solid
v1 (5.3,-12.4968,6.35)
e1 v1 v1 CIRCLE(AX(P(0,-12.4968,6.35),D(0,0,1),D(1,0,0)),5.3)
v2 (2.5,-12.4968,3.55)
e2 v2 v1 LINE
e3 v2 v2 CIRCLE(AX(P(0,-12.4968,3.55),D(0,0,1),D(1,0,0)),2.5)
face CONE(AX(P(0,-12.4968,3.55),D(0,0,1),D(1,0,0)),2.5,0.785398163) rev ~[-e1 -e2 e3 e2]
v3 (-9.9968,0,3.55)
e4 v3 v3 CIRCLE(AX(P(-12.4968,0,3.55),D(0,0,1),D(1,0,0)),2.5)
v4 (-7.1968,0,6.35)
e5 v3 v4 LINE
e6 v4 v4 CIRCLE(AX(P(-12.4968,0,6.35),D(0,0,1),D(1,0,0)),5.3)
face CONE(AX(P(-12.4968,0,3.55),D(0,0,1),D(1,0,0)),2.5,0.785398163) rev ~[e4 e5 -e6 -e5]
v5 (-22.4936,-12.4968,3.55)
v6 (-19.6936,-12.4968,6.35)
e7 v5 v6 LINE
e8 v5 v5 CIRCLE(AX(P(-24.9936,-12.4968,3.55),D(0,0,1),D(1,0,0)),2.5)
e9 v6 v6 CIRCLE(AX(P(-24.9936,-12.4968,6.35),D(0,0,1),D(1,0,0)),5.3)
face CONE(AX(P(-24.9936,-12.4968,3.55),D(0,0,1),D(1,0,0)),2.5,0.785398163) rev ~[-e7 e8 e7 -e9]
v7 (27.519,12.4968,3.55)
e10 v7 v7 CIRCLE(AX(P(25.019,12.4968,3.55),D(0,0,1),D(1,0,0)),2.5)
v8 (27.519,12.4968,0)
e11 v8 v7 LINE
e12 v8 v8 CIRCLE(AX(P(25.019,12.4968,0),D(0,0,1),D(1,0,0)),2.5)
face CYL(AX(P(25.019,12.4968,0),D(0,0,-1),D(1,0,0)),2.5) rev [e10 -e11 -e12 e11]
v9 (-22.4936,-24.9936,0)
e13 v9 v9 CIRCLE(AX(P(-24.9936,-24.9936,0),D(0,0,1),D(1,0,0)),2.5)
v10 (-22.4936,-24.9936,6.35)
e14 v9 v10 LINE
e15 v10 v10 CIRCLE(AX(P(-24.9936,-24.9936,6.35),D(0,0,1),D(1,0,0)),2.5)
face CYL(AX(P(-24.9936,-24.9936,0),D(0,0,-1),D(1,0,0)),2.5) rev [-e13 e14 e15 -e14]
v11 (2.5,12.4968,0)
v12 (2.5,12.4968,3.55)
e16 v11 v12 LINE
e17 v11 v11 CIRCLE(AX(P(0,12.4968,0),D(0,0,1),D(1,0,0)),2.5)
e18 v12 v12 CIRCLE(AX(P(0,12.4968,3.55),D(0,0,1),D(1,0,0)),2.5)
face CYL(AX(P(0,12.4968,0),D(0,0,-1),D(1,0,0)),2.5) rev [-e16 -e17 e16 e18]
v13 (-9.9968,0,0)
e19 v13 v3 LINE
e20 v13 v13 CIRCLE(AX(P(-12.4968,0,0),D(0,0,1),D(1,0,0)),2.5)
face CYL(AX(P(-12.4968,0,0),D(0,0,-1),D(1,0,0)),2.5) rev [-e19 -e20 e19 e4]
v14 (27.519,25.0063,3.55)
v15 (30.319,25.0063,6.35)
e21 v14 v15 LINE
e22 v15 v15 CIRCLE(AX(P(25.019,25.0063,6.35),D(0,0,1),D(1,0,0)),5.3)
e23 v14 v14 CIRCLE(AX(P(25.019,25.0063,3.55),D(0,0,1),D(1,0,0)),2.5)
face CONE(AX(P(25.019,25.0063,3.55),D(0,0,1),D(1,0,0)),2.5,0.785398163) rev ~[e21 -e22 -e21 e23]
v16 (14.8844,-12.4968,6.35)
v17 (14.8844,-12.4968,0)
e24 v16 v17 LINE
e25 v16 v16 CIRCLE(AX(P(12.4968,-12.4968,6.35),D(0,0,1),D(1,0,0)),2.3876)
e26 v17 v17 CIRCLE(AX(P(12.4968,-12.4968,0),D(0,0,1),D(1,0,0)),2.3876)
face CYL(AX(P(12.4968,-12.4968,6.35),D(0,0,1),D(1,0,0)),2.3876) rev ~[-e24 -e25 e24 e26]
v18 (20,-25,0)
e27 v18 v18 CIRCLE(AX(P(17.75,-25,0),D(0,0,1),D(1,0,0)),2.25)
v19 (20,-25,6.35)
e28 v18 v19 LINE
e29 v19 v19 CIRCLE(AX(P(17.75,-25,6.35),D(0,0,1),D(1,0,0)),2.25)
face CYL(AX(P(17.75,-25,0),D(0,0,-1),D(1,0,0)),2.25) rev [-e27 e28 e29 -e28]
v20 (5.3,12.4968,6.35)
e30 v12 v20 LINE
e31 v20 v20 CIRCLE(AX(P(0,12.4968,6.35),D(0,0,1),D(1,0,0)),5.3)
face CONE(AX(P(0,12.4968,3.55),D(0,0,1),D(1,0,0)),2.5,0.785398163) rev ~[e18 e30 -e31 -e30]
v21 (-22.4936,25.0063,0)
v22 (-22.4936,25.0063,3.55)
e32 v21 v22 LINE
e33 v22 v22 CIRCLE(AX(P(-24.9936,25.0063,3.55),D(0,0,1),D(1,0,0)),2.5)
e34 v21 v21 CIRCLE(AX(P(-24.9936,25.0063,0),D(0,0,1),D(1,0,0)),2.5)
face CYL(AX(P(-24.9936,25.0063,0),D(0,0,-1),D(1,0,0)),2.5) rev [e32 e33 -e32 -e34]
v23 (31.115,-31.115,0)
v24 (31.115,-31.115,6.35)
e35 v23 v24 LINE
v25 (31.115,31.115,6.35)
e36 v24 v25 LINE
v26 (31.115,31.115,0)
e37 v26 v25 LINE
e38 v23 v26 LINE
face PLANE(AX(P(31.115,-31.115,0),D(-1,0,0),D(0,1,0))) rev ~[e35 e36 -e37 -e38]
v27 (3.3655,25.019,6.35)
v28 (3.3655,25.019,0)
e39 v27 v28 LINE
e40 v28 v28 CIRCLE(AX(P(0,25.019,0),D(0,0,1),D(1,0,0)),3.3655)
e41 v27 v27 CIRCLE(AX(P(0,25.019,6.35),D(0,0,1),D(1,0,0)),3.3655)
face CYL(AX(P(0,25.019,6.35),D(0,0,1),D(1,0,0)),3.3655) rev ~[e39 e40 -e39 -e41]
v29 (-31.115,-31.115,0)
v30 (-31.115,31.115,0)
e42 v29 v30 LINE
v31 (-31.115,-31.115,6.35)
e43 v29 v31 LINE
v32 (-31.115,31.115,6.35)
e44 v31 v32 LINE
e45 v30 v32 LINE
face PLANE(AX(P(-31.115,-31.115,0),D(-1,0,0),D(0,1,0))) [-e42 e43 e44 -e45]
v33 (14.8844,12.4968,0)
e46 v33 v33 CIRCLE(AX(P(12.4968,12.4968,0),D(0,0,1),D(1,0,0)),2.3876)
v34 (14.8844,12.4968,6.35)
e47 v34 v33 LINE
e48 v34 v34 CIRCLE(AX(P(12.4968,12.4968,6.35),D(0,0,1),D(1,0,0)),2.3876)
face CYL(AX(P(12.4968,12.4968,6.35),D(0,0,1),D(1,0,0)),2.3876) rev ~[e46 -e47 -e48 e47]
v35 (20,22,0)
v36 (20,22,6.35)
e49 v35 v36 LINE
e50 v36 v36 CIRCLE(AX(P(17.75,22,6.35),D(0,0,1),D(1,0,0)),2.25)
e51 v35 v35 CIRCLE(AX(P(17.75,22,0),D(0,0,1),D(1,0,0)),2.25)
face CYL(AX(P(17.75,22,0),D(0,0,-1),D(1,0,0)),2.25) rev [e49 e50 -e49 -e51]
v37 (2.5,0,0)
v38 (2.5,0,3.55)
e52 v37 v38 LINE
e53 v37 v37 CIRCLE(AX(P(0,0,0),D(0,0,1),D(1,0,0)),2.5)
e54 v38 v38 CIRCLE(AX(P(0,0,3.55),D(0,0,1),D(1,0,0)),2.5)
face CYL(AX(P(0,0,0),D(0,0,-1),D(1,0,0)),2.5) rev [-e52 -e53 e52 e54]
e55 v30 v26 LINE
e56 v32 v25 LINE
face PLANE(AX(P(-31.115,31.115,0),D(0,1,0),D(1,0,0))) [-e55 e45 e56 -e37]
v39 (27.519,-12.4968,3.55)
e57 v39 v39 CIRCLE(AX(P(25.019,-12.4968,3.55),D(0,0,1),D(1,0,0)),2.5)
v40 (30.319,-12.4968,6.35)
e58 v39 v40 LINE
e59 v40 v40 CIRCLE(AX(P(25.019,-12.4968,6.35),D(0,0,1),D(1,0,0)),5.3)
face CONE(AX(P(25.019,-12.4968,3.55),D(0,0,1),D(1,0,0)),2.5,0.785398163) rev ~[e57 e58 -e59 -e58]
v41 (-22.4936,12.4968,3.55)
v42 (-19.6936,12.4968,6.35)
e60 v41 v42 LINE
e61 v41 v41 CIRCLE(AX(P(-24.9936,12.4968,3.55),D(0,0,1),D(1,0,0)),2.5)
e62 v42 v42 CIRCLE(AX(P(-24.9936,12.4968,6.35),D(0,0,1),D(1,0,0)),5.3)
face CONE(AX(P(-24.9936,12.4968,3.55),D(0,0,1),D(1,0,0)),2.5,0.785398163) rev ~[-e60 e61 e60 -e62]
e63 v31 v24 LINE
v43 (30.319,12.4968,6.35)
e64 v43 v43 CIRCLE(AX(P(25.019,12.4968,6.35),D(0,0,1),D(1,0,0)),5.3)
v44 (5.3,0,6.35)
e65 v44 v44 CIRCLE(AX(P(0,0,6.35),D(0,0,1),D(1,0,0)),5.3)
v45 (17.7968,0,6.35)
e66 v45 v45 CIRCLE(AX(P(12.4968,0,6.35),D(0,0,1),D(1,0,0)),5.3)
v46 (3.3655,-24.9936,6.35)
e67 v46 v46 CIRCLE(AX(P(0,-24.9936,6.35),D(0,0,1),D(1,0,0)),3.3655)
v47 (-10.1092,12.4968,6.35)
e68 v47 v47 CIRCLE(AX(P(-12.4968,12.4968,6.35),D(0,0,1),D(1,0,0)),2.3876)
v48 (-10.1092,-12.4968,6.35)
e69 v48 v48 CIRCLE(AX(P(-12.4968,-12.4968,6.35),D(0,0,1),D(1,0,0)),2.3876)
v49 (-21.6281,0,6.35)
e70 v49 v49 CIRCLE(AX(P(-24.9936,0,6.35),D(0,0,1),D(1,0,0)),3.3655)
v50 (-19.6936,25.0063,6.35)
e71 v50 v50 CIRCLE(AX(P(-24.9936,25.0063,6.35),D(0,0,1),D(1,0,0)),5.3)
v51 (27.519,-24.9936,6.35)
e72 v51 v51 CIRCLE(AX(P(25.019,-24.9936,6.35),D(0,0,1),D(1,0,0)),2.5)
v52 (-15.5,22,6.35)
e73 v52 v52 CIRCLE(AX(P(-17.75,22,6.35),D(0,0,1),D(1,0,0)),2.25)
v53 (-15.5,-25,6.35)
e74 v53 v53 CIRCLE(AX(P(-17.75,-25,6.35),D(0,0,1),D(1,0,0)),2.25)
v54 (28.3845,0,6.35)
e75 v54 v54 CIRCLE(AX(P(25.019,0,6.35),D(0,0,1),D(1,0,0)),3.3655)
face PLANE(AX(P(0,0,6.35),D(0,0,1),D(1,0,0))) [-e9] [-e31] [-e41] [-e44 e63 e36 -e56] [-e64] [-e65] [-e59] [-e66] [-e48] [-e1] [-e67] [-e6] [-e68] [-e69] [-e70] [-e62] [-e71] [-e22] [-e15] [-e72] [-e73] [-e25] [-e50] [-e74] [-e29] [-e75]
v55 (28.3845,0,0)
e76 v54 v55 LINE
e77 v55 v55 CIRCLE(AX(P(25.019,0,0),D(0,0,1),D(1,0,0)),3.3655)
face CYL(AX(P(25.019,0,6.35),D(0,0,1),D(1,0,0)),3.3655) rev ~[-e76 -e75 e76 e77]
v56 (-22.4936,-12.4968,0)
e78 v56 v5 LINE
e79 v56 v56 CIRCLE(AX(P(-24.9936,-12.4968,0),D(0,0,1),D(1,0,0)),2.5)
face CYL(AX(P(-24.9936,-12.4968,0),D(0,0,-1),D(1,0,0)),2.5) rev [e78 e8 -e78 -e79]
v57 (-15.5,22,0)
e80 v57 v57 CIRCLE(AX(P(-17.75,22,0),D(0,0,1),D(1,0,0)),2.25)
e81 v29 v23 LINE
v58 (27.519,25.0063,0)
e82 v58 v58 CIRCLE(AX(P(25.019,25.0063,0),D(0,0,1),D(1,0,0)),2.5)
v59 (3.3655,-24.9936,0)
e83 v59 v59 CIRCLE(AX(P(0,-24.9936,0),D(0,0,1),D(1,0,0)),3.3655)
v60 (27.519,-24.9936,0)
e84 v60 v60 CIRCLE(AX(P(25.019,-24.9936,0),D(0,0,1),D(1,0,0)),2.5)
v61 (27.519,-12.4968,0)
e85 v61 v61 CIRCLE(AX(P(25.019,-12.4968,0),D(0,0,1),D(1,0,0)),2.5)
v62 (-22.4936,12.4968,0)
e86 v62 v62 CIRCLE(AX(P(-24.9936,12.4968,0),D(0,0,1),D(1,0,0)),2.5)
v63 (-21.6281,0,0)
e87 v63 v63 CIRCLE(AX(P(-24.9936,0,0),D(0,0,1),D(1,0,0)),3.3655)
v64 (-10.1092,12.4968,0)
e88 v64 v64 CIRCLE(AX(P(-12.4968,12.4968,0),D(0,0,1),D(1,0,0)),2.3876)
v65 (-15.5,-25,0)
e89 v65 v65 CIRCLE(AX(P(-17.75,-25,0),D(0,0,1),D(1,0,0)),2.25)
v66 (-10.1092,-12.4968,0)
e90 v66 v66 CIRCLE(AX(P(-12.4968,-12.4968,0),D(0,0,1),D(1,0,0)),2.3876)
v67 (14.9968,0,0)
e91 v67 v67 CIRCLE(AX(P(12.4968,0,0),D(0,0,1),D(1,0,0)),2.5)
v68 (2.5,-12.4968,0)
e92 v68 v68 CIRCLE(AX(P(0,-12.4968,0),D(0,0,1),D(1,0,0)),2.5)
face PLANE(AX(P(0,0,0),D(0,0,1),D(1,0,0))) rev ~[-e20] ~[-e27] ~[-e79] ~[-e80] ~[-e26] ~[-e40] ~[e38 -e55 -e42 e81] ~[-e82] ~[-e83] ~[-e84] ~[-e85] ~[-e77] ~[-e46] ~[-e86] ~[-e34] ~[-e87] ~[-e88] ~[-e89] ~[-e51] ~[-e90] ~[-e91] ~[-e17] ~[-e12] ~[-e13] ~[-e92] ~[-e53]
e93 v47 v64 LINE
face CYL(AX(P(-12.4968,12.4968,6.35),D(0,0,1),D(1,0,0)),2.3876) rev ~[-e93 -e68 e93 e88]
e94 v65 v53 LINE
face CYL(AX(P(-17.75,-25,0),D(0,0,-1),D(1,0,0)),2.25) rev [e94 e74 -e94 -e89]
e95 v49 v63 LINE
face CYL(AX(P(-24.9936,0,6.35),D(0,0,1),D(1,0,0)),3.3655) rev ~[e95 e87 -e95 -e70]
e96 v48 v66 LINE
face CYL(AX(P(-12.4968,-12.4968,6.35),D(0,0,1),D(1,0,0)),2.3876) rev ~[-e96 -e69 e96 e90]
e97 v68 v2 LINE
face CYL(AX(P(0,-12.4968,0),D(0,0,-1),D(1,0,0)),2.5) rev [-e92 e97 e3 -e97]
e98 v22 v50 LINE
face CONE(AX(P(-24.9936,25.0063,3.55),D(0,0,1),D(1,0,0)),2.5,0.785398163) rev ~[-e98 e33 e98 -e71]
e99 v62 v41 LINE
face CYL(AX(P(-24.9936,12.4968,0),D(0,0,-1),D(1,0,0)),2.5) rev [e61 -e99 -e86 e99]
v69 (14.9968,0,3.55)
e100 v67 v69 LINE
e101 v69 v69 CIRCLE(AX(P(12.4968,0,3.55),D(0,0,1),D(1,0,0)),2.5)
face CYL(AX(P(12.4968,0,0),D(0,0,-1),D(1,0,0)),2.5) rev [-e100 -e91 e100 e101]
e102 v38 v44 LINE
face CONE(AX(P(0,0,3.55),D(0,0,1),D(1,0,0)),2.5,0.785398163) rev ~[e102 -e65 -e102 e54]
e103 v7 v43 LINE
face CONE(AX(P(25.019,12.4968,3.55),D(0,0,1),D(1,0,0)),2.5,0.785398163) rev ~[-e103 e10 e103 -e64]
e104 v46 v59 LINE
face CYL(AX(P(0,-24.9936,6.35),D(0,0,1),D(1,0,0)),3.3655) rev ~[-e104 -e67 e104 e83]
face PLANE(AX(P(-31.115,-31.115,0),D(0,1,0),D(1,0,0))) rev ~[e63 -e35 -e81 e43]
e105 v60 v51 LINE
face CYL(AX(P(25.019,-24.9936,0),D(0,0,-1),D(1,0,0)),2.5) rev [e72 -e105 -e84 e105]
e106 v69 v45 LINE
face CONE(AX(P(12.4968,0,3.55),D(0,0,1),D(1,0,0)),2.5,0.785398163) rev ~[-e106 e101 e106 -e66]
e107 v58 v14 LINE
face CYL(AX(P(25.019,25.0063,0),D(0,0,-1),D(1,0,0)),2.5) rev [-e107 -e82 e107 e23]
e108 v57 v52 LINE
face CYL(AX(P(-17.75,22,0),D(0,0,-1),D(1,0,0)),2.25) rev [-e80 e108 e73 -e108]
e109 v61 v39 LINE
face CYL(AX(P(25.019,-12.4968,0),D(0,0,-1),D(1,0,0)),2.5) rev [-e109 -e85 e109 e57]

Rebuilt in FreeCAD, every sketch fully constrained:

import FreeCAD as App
import Part
import Sketcher
Q = App.Units.Quantity


def edges_at(feature, points):
    """Names of the edges that pass closest to the given points."""
    edges = feature.Shape.Edges
    near = lambda p: min(range(len(edges)), key=lambda i: edges[i].distToShape(Part.Vertex(*p))[0])
    return sorted({f"Edge{near(p) + 1}" for p in points})

doc = App.newDocument("Part")
body = doc.addObject("PartDesign::Body", "Body")

sketch1 = body.newObject("Sketcher::SketchObject", "Sketch")
sketch1.AttachmentSupport = (doc.getObject("XY_Plane"), [""])
sketch1.MapMode = "FlatFace"
sketch1.addGeometry([
    Part.LineSegment(App.Vector(-31.1, 31.1, 0), App.Vector(-31.1, -31.1, 0)),
    Part.LineSegment(App.Vector(-31.1, -31.1, 0), App.Vector(31.1, -31.1, 0)),
    Part.LineSegment(App.Vector(31.1, -31.1, 0), App.Vector(31.1, 31.1, 0)),
    Part.LineSegment(App.Vector(31.1, 31.1, 0), App.Vector(-31.1, 31.1, 0)),
    Part.Circle(App.Vector(-25, -25, 0), App.Vector(0, 0, 1), 2.5),
    Part.Circle(App.Vector(-17.8, -25, 0), App.Vector(0, 0, 1), 2.2),
    Part.Circle(App.Vector(-25, -12.5, 0), App.Vector(0, 0, 1), 2.5),
    Part.Circle(App.Vector(0, -12.5, 0), App.Vector(0, 0, 1), 2.5),
    Part.Circle(App.Vector(-12.5, 0, 0), App.Vector(0, 0, 1), 2.5),
    Part.Circle(App.Vector(0, 0, 0), App.Vector(0, 0, 1), 2.5),
    Part.Circle(App.Vector(17.8, -25, 0), App.Vector(0, 0, 1), 2.2),
    Part.Circle(App.Vector(25, -25, 0), App.Vector(0, 0, 1), 2.5),
    Part.Circle(App.Vector(12.5, 0, 0), App.Vector(0, 0, 1), 2.5),
    Part.Circle(App.Vector(25, -12.5, 0), App.Vector(0, 0, 1), 2.5),
    Part.Circle(App.Vector(-25, 12.5, 0), App.Vector(0, 0, 1), 2.5),
    Part.Circle(App.Vector(0, 12.5, 0), App.Vector(0, 0, 1), 2.5),
    Part.Circle(App.Vector(-25, 25, 0), App.Vector(0, 0, 1), 2.5),
    Part.Circle(App.Vector(-17.8, 22, 0), App.Vector(0, 0, 1), 2.2),
    Part.Circle(App.Vector(25, 12.5, 0), App.Vector(0, 0, 1), 2.5),
    Part.Circle(App.Vector(17.8, 22, 0), App.Vector(0, 0, 1), 2.2),
    Part.Circle(App.Vector(25, 25, 0), App.Vector(0, 0, 1), 2.5),
], False)
sketch1.addConstraint([
    Sketcher.Constraint("Coincident", 0, 2, 1, 1),
    Sketcher.Constraint("Coincident", 1, 2, 2, 1),
    Sketcher.Constraint("Coincident", 2, 2, 3, 1),
    Sketcher.Constraint("Coincident", 3, 2, 0, 1),
    Sketcher.Constraint("Vertical", 0),
    Sketcher.Constraint("Horizontal", 1),
    Sketcher.Constraint("Vertical", 2),
    Sketcher.Constraint("Horizontal", 3),
    Sketcher.Constraint("Coincident", 9, 3, -1, 1),
    Sketcher.Constraint("Equal", 4, 6),
    Sketcher.Constraint("Equal", 6, 7),
    Sketcher.Constraint("Equal", 7, 8),
    Sketcher.Constraint("Equal", 8, 9),
    Sketcher.Constraint("Equal", 5, 10),
    Sketcher.Constraint("Equal", 9, 11),
    Sketcher.Constraint("Equal", 11, 12),
    Sketcher.Constraint("Equal", 12, 13),
    Sketcher.Constraint("Equal", 13, 14),
    Sketcher.Constraint("Equal", 14, 15),
    Sketcher.Constraint("Equal", 15, 16),
    Sketcher.Constraint("Equal", 10, 17),
    Sketcher.Constraint("Equal", 16, 18),
    Sketcher.Constraint("Equal", 17, 19),
    Sketcher.Constraint("Equal", 18, 20),
    Sketcher.Constraint("Symmetric", 8, 3, 12, 3, -1, 1),
    Sketcher.Constraint("Symmetric", 7, 3, 15, 3, -1, 1),
    Sketcher.Constraint("Symmetric", 0, 2, 2, 2, -1, 1),
    Sketcher.Constraint("Symmetric", 5, 3, 10, 3, -2),
    Sketcher.Constraint("Symmetric", 17, 3, 19, 3, -2),
    Sketcher.Constraint("Symmetric", 6, 3, 14, 3, -1),
    Sketcher.Constraint("Symmetric", 13, 3, 18, 3, -1),
    Sketcher.Constraint("PointOnObject", 7, 3, -2),
    Sketcher.Constraint("PointOnObject", 8, 3, -1),
    Sketcher.Constraint("Horizontal", 6, 3, 7, 3),
    Sketcher.Constraint("Horizontal", 4, 3, 11, 3),
    Sketcher.Constraint("Horizontal", 7, 3, 13, 3),
    Sketcher.Constraint("Horizontal", 16, 3, 20, 3),
    Sketcher.Constraint("Vertical", 4, 3, 6, 3),
    Sketcher.Constraint("Vertical", 11, 3, 13, 3),
    Sketcher.Constraint("Vertical", 14, 3, 16, 3),
    Sketcher.Constraint("Vertical", 5, 3, 17, 3),
    Sketcher.Constraint("Vertical", 18, 3, 20, 3),
    Sketcher.Constraint("Equal", 3, 0),
    Sketcher.Constraint("DistanceX", 1, 1, 1, 2, Q("2.45 in")),
    Sketcher.Constraint("Diameter", 4, Q("5 mm")),
    Sketcher.Constraint("Diameter", 5, Q("4.5 mm")),
    Sketcher.Constraint("DistanceX", 11, 3, 1, 2, Q("0.24 in")),
    Sketcher.Constraint("DistanceX", 4, 3, -1, 1, Q("0.984 in")),
    Sketcher.Constraint("DistanceY", 4, 3, -1, 1, Q("0.984 in")),
    Sketcher.Constraint("DistanceY", 6, 3, -1, 1, Q("0.492 in")),
    Sketcher.Constraint("DistanceX", 8, 3, -1, 1, Q("0.492 in")),
    Sketcher.Constraint("DistanceY", -1, 1, 16, 3, Q("0.9845 in")),
    Sketcher.Constraint("DistanceX", 5, 3, -1, 1, Q("17.75 mm")),
    Sketcher.Constraint("DistanceY", 5, 3, -1, 1, Q("25 mm")),
    Sketcher.Constraint("DistanceY", -1, 1, 17, 3, Q("22 mm")),
])
pad1 = body.newObject("PartDesign::Pad", "Pad")
pad1.Profile = sketch1
pad1.Length = Q("0.25 in")
doc.recompute()

chamfer = body.newObject("PartDesign::Chamfer", "Chamfer")
chamfer.Base = (pad1, edges_at(pad1, [
    (22.519, 25.006, 6.35),
    (22.519, 12.497, 6.35),
    (22.519, -12.497, 6.35),
    (9.997, 0, 6.35),
    (-2.5, 12.497, 6.35),
    (-2.5, 0, 6.35),
    (-2.5, -12.497, 6.35),
    (-27.494, -12.497, 6.35),
    (-14.997, 0, 6.35),
    (-27.494, 25.006, 6.35),
    (-27.494, 12.497, 6.35),
]))
chamfer.Size = 2.8

sketch2 = body.newObject("Sketcher::SketchObject", "Sketch001")
sketch2.AttachmentSupport = (doc.getObject("XY_Plane"), [""])
sketch2.MapMode = "FlatFace"
sketch2.AttachmentOffset = App.Placement(App.Vector(0, 0, 0.25 * 25.4), App.Rotation())
sketch2.addGeometry([
    Part.Circle(App.Vector(0, -25, 0), App.Vector(0, 0, 1), 3.4),
    Part.Circle(App.Vector(0, 25, 0), App.Vector(0, 0, 1), 3.4),
    Part.Circle(App.Vector(12.5, 12.5, 0), App.Vector(0, 0, 1), 2.4),
    Part.Circle(App.Vector(-12.5, 12.5, 0), App.Vector(0, 0, 1), 2.4),
    Part.Circle(App.Vector(-12.5, -12.5, 0), App.Vector(0, 0, 1), 2.4),
    Part.Circle(App.Vector(12.5, -12.5, 0), App.Vector(0, 0, 1), 2.4),
    Part.Circle(App.Vector(25, 0, 0), App.Vector(0, 0, 1), 3.4),
    Part.Circle(App.Vector(-25, 0, 0), App.Vector(0, 0, 1), 3.4),
], False)
sketch2.addConstraint([
    Sketcher.Constraint("Equal", 0, 1),
    Sketcher.Constraint("Equal", 2, 3),
    Sketcher.Constraint("Equal", 3, 4),
    Sketcher.Constraint("Equal", 4, 5),
    Sketcher.Constraint("Equal", 1, 6),
    Sketcher.Constraint("Equal", 6, 7),
    Sketcher.Constraint("Symmetric", 2, 3, 4, 3, -1, 1),
    Sketcher.Constraint("Symmetric", 3, 3, 5, 3, -1, 1),
    Sketcher.Constraint("Symmetric", 2, 3, 3, 3, -2),
    Sketcher.Constraint("PointOnObject", 0, 3, -2),
    Sketcher.Constraint("PointOnObject", 1, 3, -2),
    Sketcher.Constraint("PointOnObject", 6, 3, -1),
    Sketcher.Constraint("PointOnObject", 7, 3, -1),
    Sketcher.Constraint("Diameter", 0, Q("0.265 in")),
    Sketcher.Constraint("Diameter", 2, Q("0.188 in")),
    Sketcher.Constraint("DistanceY", 0, 3, -1, 1, Q("0.984 in")),
    Sketcher.Constraint("DistanceY", -1, 1, 1, 3, Q("0.985 in")),
    Sketcher.Constraint("DistanceX", -1, 1, 2, 3, Q("0.492 in")),
    Sketcher.Constraint("DistanceY", -1, 1, 2, 3, Q("0.492 in")),
    Sketcher.Constraint("DistanceX", -1, 1, 6, 3, Q("0.985 in")),
    Sketcher.Constraint("DistanceX", 7, 3, -1, 1, Q("0.984 in")),
])
pocket1 = body.newObject("PartDesign::Pocket", "Pocket")
pocket1.Profile = sketch2
pocket1.Type = "ThroughAll"

doc.recompute()
